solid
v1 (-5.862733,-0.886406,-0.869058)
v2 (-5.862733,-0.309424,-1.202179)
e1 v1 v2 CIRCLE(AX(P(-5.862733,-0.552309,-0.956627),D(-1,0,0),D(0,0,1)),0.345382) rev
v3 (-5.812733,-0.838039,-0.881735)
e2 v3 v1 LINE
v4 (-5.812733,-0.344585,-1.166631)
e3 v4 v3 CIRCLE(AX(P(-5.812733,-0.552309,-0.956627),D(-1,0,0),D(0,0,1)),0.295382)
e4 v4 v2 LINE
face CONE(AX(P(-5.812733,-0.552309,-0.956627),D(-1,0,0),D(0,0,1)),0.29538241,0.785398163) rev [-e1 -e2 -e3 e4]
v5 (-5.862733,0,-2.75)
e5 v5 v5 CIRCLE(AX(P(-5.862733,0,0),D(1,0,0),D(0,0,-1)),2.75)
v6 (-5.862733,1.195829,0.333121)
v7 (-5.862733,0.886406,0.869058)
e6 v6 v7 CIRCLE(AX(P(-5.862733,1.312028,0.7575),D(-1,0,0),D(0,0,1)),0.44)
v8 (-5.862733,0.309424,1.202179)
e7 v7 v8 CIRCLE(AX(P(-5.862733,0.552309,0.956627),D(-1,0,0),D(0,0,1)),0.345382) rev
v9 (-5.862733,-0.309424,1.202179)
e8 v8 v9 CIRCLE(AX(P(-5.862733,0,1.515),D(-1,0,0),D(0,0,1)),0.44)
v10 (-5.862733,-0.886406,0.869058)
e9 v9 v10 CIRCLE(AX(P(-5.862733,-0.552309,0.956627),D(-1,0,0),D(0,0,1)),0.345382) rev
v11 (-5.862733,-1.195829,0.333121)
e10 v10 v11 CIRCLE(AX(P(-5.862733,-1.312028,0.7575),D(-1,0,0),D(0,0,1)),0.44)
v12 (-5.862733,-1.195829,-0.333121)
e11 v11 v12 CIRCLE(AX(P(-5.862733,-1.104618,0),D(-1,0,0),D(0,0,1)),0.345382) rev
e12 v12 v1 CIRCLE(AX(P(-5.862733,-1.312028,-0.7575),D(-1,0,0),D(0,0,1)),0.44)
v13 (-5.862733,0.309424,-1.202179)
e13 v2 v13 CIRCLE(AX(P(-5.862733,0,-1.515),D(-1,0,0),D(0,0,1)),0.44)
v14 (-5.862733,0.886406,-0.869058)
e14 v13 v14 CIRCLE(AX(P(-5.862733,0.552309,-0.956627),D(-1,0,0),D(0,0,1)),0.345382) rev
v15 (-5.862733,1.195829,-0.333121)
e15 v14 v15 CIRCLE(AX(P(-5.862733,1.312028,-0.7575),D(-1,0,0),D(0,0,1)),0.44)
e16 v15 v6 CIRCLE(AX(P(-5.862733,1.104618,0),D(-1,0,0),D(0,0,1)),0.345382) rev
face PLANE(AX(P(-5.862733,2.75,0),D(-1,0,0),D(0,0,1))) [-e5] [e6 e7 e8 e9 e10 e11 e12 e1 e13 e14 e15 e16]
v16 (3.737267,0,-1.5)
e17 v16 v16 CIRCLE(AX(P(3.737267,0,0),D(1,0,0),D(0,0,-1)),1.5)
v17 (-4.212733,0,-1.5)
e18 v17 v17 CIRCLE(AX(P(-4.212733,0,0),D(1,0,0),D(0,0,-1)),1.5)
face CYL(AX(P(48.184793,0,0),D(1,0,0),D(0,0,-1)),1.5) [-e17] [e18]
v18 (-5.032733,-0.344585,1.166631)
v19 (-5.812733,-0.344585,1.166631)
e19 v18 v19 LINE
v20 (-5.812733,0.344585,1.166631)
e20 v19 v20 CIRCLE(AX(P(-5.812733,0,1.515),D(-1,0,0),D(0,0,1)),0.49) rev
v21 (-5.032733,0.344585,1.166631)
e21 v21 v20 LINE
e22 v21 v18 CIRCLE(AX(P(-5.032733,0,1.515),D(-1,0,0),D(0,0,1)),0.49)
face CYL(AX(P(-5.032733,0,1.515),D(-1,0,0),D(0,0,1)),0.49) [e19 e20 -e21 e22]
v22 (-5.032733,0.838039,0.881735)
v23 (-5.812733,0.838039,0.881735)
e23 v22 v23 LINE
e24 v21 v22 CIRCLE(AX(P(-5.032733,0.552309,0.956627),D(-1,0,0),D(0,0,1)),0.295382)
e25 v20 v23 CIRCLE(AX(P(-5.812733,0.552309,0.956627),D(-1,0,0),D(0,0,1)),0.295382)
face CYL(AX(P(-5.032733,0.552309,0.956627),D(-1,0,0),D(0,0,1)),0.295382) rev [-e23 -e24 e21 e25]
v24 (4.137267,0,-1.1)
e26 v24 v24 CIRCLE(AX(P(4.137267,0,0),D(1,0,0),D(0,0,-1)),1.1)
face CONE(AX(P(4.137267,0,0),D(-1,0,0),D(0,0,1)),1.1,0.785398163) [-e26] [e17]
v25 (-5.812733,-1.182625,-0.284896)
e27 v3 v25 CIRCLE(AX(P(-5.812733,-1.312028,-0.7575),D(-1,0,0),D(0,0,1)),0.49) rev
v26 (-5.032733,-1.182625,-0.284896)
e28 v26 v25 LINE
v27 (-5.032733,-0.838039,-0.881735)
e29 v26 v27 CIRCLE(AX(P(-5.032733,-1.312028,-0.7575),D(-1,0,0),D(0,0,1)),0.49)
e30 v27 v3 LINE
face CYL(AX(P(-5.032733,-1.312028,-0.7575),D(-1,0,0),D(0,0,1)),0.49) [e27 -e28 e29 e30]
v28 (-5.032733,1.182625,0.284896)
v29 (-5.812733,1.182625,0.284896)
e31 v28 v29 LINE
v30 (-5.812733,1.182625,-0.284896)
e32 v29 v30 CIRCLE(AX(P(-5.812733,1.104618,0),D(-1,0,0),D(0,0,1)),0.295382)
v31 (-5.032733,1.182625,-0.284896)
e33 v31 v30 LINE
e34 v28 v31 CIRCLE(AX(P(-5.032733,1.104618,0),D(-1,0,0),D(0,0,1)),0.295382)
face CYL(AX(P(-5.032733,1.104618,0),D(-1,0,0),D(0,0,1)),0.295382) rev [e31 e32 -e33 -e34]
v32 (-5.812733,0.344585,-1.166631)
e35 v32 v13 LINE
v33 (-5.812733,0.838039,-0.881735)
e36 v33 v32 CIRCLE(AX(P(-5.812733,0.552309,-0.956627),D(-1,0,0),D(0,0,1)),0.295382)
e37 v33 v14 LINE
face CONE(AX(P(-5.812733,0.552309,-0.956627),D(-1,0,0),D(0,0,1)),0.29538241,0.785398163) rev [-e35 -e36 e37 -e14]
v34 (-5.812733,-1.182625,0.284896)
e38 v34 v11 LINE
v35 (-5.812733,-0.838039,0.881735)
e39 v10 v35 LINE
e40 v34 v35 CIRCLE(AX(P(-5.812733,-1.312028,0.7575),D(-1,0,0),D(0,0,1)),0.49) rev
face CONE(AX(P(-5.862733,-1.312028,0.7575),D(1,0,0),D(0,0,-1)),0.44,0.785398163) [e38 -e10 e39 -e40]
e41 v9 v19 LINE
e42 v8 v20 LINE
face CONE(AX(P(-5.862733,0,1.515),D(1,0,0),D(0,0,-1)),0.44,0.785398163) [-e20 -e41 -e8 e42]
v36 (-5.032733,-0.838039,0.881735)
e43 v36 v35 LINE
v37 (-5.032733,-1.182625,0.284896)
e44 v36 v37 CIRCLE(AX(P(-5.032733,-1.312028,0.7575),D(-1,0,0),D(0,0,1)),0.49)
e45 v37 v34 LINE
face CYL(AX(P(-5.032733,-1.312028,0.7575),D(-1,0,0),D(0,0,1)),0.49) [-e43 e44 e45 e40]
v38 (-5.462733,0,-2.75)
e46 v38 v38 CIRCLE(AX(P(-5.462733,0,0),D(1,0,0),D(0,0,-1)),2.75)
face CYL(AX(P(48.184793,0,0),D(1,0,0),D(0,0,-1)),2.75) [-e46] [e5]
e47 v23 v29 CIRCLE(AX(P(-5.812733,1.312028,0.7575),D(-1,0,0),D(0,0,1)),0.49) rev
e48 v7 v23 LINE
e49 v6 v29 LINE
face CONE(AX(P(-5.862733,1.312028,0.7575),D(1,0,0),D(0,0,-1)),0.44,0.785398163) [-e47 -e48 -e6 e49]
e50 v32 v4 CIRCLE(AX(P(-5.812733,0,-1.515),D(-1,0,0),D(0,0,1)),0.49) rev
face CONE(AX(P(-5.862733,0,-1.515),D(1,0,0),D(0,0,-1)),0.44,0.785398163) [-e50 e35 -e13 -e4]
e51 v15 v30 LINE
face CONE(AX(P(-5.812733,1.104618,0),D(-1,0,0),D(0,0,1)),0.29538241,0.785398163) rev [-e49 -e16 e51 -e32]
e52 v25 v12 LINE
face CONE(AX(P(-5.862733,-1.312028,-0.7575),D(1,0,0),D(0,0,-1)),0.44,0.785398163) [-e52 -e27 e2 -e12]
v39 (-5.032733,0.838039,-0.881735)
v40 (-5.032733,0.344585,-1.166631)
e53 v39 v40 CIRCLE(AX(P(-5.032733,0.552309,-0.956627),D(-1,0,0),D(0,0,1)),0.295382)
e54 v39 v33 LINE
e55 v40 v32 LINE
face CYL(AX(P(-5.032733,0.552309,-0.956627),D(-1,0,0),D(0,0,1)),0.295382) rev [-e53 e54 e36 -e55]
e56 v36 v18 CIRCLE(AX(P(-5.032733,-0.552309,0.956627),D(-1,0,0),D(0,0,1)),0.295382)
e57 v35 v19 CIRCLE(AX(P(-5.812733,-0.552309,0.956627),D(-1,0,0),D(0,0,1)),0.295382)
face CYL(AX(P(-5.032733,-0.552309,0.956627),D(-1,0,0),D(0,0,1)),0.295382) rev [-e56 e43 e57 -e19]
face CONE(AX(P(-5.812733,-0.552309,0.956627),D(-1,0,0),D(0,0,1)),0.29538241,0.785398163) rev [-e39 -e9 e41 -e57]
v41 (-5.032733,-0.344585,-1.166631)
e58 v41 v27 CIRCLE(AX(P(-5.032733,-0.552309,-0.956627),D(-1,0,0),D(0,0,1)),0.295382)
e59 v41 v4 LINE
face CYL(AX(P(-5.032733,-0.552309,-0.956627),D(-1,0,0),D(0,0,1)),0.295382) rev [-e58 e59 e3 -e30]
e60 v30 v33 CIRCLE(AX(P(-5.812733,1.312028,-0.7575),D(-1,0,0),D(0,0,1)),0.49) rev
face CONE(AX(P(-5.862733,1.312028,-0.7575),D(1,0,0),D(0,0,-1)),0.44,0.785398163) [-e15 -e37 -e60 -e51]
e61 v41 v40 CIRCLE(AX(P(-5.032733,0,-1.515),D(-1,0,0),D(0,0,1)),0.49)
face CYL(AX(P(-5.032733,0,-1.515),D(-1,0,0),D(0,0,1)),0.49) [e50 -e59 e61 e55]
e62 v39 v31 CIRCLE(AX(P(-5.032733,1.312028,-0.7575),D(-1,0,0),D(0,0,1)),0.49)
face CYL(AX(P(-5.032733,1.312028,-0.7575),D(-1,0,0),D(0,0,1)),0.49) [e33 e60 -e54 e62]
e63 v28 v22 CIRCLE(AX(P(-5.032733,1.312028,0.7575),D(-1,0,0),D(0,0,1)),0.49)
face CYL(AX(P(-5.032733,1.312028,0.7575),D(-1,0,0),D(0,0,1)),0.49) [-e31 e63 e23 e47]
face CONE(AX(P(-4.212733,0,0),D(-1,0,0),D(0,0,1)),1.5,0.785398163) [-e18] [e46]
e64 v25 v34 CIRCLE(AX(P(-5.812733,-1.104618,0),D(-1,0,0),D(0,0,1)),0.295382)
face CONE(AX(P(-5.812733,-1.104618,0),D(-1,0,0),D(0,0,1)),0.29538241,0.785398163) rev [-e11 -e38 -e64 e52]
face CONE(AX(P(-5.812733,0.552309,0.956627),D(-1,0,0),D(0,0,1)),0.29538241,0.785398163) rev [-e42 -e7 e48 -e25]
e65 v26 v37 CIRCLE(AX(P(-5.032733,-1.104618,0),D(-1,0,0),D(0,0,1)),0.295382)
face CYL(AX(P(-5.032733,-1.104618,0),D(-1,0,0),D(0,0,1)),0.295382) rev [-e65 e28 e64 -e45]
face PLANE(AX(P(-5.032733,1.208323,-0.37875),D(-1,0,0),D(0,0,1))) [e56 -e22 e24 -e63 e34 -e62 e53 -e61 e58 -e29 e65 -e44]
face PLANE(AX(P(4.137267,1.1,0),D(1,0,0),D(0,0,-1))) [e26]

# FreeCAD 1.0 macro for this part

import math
import FreeCAD as App
import Part
import Sketcher
Q = App.Units.Quantity


def edges_at(feature, points):
    """Names of the edges that pass closest to the given points."""
    edges = feature.Shape.Edges
    near = lambda p: min(range(len(edges)), key=lambda i: edges[i].distToShape(Part.Vertex(*p))[0])
    return sorted({f"Edge{near(p) + 1}" for p in points})

doc = App.newDocument("Part")
params = doc.addObject("Spreadsheet::Sheet", "Params")
for row, (alias, value) in enumerate([
    ("sketch1_width", "10 mm"),
    ("sketch1_width2", "0.4 mm"),
    ("sketch1_height", "1.1 mm"),
    ("sketch1_width3", "7.95 mm"),
    ("revolution_angle", "360 deg"),
    ("sketch2_radius", "0.49 mm"),
    ("pocket1_length", "0.83 mm"),
    ("chamfer_size", "0.05 mm"),
], start=1):
    params.set(f"A{row}", alias)
    params.set(f"B{row}", "=" + value)
    params.setAlias(f"B{row}", alias)

body = doc.addObject("PartDesign::Body", "Body")

# Sketch on XY plane
sketch1 = body.newObject("Sketcher::SketchObject", "Sketch")
sketch1.AttachmentSupport = (doc.getObject("XY_Plane"), [""])
sketch1.MapMode = "FlatFace"
sketch1.addGeometry(Part.LineSegment(App.Vector(-4.21, 1.5, 0), App.Vector(-5.46, 2.75, 0)), False)
sketch1.addGeometry(Part.LineSegment(App.Vector(-5.46, 2.75, 0), App.Vector(-5.86, 2.75, 0)), False)
sketch1.addGeometry(Part.LineSegment(App.Vector(-5.86, 2.75, 0), App.Vector(-5.86, 0, 0)), False)
sketch1.addGeometry(Part.LineSegment(App.Vector(-5.86, 0, 0), App.Vector(4.14, 0, 0)), False)
sketch1.addGeometry(Part.LineSegment(App.Vector(4.14, 0, 0), App.Vector(4.14, 1.1, 0)), False)
sketch1.addGeometry(Part.LineSegment(App.Vector(4.14, 1.1, 0), App.Vector(3.74, 1.5, 0)), False)
sketch1.addGeometry(Part.LineSegment(App.Vector(3.74, 1.5, 0), App.Vector(-4.21, 1.5, 0)), False)
sketch1.addConstraint(Sketcher.Constraint("Coincident", 0, 2, 1, 1))
sketch1.addConstraint(Sketcher.Constraint("Coincident", 1, 2, 2, 1))
sketch1.addConstraint(Sketcher.Constraint("Coincident", 2, 2, 3, 1))
sketch1.addConstraint(Sketcher.Constraint("Coincident", 3, 2, 4, 1))
sketch1.addConstraint(Sketcher.Constraint("Coincident", 4, 2, 5, 1))
sketch1.addConstraint(Sketcher.Constraint("Coincident", 5, 2, 6, 1))
sketch1.addConstraint(Sketcher.Constraint("Coincident", 6, 2, 0, 1))
sketch1.addConstraint(Sketcher.Constraint("Horizontal", 1))
sketch1.addConstraint(Sketcher.Constraint("Vertical", 2))
sketch1.addConstraint(Sketcher.Constraint("Horizontal", 3))
sketch1.addConstraint(Sketcher.Constraint("Vertical", 4))
sketch1.addConstraint(Sketcher.Constraint("Horizontal", 6))
sketch1.addConstraint(Sketcher.Constraint("PointOnObject", 2, 2, -1))
sketch1.addConstraint(Sketcher.Constraint("Parallel", 0, 5))
sketch1.addConstraint(Sketcher.Constraint("DistanceX", 3, 1, 3, 2, 10.0))
sketch1.addConstraint(Sketcher.Constraint("Angle", 0, Q("135 deg")))
sketch1.addConstraint(Sketcher.Constraint("DistanceX", 1, 2, 1, 1, 0.4))
sketch1.addConstraint(Sketcher.Constraint("DistanceY", 4, 1, 4, 2, 1.1))
sketch1.addConstraint(Sketcher.Constraint("DistanceX", 6, 2, 6, 1, 7.95))
sketch1.addConstraint(Sketcher.Constraint("DistanceY", -1, 1, 5, 2, 1.5))
sketch1.addConstraint(Sketcher.Constraint("DistanceX", 0, 2, -1, 1, 5.462733))
sketch1.setExpression("Constraints[14]", "Params.sketch1_width")
sketch1.setExpression("Constraints[16]", "Params.sketch1_width2")
sketch1.setExpression("Constraints[17]", "Params.sketch1_height")
sketch1.setExpression("Constraints[18]", "Params.sketch1_width3")
revolution = body.newObject("PartDesign::Revolution", "Revolution")
revolution.Profile = sketch1
revolution.ReferenceAxis = (sketch1, ["H_Axis"])
revolution.setExpression("Angle", "Params.revolution_angle")

# Sketch on YZ plane
sketch2 = body.newObject("Sketcher::SketchObject", "Sketch001")
sketch2.AttachmentSupport = (doc.getObject("YZ_Plane"), [""])
sketch2.MapMode = "FlatFace"
sketch2.AttachmentOffset = App.Placement(App.Vector(0, 0, -5.862733), App.Rotation())
sketch2.addGeometry(Part.ArcOfCircle(Part.Circle(App.Vector(0.55, 0.96, 0), App.Vector(0, 0, 1), 0.3), math.radians(-15), math.radians(135)), False)
sketch2.addGeometry(Part.ArcOfCircle(Part.Circle(App.Vector(1.31, 0.76, 0), App.Vector(0, 0, 1), 0.49), math.radians(165), math.radians(255)), False)
sketch2.addGeometry(Part.ArcOfCircle(Part.Circle(App.Vector(1.1, 0, 0), App.Vector(0, 0, 1), 0.3), math.radians(-75), math.radians(75)), False)
sketch2.addGeometry(Part.ArcOfCircle(Part.Circle(App.Vector(1.31, -0.76, 0), App.Vector(0, 0, 1), 0.49), math.radians(105), math.radians(195)), False)
sketch2.addGeometry(Part.ArcOfCircle(Part.Circle(App.Vector(0.55, -0.96, 0), App.Vector(0, 0, 1), 0.3), math.radians(-135), math.radians(15)), False)
sketch2.addGeometry(Part.ArcOfCircle(Part.Circle(App.Vector(0, -1.52, 0), App.Vector(0, 0, 1), 0.49), math.radians(45), math.radians(135)), False)
sketch2.addGeometry(Part.ArcOfCircle(Part.Circle(App.Vector(-0.55, -0.96, 0), App.Vector(0, 0, 1), 0.3), math.radians(165), math.radians(315)), False)
sketch2.addGeometry(Part.ArcOfCircle(Part.Circle(App.Vector(-1.31, -0.76, 0), App.Vector(0, 0, 1), 0.49), math.radians(-15), math.radians(75)), False)
sketch2.addGeometry(Part.ArcOfCircle(Part.Circle(App.Vector(-1.1, 0, 0), App.Vector(0, 0, 1), 0.3), math.radians(105), math.radians(255)), False)
sketch2.addGeometry(Part.ArcOfCircle(Part.Circle(App.Vector(-1.31, 0.76, 0), App.Vector(0, 0, 1), 0.49), math.radians(-75), math.radians(15)), False)
sketch2.addGeometry(Part.ArcOfCircle(Part.Circle(App.Vector(-0.55, 0.96, 0), App.Vector(0, 0, 1), 0.3), math.radians(45), math.radians(195)), False)
sketch2.addGeometry(Part.ArcOfCircle(Part.Circle(App.Vector(0, 1.52, 0), App.Vector(0, 0, 1), 0.49), math.radians(-135), math.radians(-45)), False)
sketch2.addConstraint(Sketcher.Constraint("Tangent", 0, 1, 1, 1))
sketch2.addConstraint(Sketcher.Constraint("Tangent", 1, 2, 2, 2))
sketch2.addConstraint(Sketcher.Constraint("Tangent", 2, 1, 3, 1))
sketch2.addConstraint(Sketcher.Constraint("Tangent", 3, 2, 4, 2))
sketch2.addConstraint(Sketcher.Constraint("Tangent", 4, 1, 5, 1))
sketch2.addConstraint(Sketcher.Constraint("Tangent", 5, 2, 6, 2))
sketch2.addConstraint(Sketcher.Constraint("Tangent", 6, 1, 7, 1))
sketch2.addConstraint(Sketcher.Constraint("Tangent", 7, 2, 8, 2))
sketch2.addConstraint(Sketcher.Constraint("Tangent", 8, 1, 9, 1))
sketch2.addConstraint(Sketcher.Constraint("Tangent", 9, 2, 10, 2))
sketch2.addConstraint(Sketcher.Constraint("Tangent", 10, 1, 11, 1))
sketch2.addConstraint(Sketcher.Constraint("Tangent", 11, 2, 0, 2))
sketch2.addConstraint(Sketcher.Constraint("Equal", 0, 2))
sketch2.addConstraint(Sketcher.Constraint("Equal", 1, 3))
sketch2.addConstraint(Sketcher.Constraint("Equal", 2, 4))
sketch2.addConstraint(Sketcher.Constraint("Equal", 3, 5))
sketch2.addConstraint(Sketcher.Constraint("Equal", 4, 6))
sketch2.addConstraint(Sketcher.Constraint("Equal", 5, 7))
sketch2.addConstraint(Sketcher.Constraint("Equal", 6, 8))
sketch2.addConstraint(Sketcher.Constraint("Equal", 7, 9))
sketch2.addConstraint(Sketcher.Constraint("Equal", 8, 10))
sketch2.addConstraint(Sketcher.Constraint("Equal", 9, 11))
sketch2.addConstraint(Sketcher.Constraint("Symmetric", 0, 3, 6, 3, -1, 1))
sketch2.addConstraint(Sketcher.Constraint("Symmetric", 2, 3, 8, 3, -1, 1))
sketch2.addConstraint(Sketcher.Constraint("Symmetric", 4, 3, 10, 3, -1, 1))
sketch2.addConstraint(Sketcher.Constraint("Symmetric", 4, 3, 6, 3, -2))
sketch2.addConstraint(Sketcher.Constraint("PointOnObject", 2, 3, -1))
sketch2.addConstraint(Sketcher.Constraint("Radius", 1, 0.49))
sketch2.addConstraint(Sketcher.Constraint("DistanceY", 5, 3, -1, 1, 1.515))
sketch2.addConstraint(Sketcher.Constraint("Radius", 0, 0.295382))
sketch2.addConstraint(Sketcher.Constraint("DistanceY", 3, 3, 1, 3, 1.515))
sketch2.addConstraint(Sketcher.Constraint("DistanceX", -1, 1, 0, 3, 0.552309))
sketch2.setExpression("Constraints[27]", "Params.sketch2_radius")
pocket1 = body.newObject("PartDesign::Pocket", "Pocket")
pocket1.Profile = sketch2
pocket1.setExpression("Length", "Params.pocket1_length")
pocket1.Reversed = True
doc.recompute()

chamfer = body.newObject("PartDesign::Chamfer", "Chamfer")
chamfer.Base = (pocket1, edges_at(pocket1, [
    (-5.863, 0.888, 0.512),
    (-5.863, 0, 1.025),
    (-5.863, -0.888, 0.512),
    (-5.863, -0.888, -0.512),
    (-5.863, 0, -1.025),
    (-5.863, 0.888, -0.512),
    (-5.863, 1.4, 0),
    (-5.863, 0.7, -1.212),
    (-5.863, -0.7, -1.212),
    (-5.863, -1.4, 0),
    (-5.863, -0.7, 1.212),
    (-5.863, 0.7, 1.212),
]))
chamfer.setExpression("Size", "Params.chamfer_size")

doc.recompute()
